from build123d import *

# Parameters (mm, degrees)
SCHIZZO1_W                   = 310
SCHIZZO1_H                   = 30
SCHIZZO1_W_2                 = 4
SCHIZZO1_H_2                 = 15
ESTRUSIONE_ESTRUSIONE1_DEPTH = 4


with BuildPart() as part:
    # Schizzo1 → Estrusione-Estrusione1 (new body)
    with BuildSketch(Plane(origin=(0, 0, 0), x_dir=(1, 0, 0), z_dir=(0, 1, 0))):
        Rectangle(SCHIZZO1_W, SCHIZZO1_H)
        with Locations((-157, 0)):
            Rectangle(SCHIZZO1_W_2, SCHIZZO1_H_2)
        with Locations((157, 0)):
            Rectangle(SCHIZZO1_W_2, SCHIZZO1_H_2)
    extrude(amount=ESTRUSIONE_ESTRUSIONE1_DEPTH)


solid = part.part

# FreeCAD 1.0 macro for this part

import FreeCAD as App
import Part
import Sketcher
from FreeCAD import Vector


def add_polygon(sketch, points):
    """Adds a closed chain of lines whose ends are joined by coincident constraints."""
    first, n = sketch.GeometryCount, len(points)
    for a, b in zip(points, points[1:] + points[:1]):
        sketch.addGeometry(Part.LineSegment(App.Vector(*a, 0), App.Vector(*b, 0)), False)
    for i in range(n):
        sketch.addConstraint(Sketcher.Constraint("Coincident", first + i, 2, first + (i + 1) % n, 1))

doc = App.newDocument("Part")
body = doc.addObject("PartDesign::Body", "Body")

# Sketch on XZ plane
sketch1 = body.newObject("Sketcher::SketchObject", "Sketch")
sketch1.AttachmentSupport = (doc.getObject("XZ_Plane"), [""])
sketch1.MapMode = "FlatFace"
add_polygon(sketch1, [(-155, 7.5), (-155, 15), (155, 15), (155, 7.5), (159, 7.5), (159, -7.5), (155, -7.5), (155, -15), (-155, -15), (-155, -7.5), (-159, -7.5), (-159, 7.5)])  # lines 0-11
sketch1.addConstraint(Sketcher.Constraint("Vertical", 0))
sketch1.addConstraint(Sketcher.Constraint("Horizontal", 1))
sketch1.addConstraint(Sketcher.Constraint("Vertical", 2))
sketch1.addConstraint(Sketcher.Constraint("Horizontal", 3))
sketch1.addConstraint(Sketcher.Constraint("Vertical", 4))
sketch1.addConstraint(Sketcher.Constraint("Horizontal", 5))
sketch1.addConstraint(Sketcher.Constraint("Vertical", 6))
sketch1.addConstraint(Sketcher.Constraint("Horizontal", 7))
sketch1.addConstraint(Sketcher.Constraint("Vertical", 8))
sketch1.addConstraint(Sketcher.Constraint("Horizontal", 9))
sketch1.addConstraint(Sketcher.Constraint("Vertical", 10))
sketch1.addConstraint(Sketcher.Constraint("Horizontal", 11))
sketch1.addConstraint(Sketcher.Constraint("Symmetric", 0, 2, 6, 2, -1, 1))
sketch1.addConstraint(Sketcher.Constraint("Symmetric", 2, 2, 8, 2, -1, 1))
sketch1.addConstraint(Sketcher.Constraint("Symmetric", 4, 2, 10, 2, -1, 1))
sketch1.addConstraint(Sketcher.Constraint("Symmetric", 5, 2, 8, 2, -2))
sketch1.addConstraint(Sketcher.Constraint("DistanceX", 1, 1, 1, 2, 310.0))
sketch1.addConstraint(Sketcher.Constraint("DistanceX", 3, 1, 3, 2, 4.0))
sketch1.addConstraint(Sketcher.Constraint("DistanceY", 4, 2, 4, 1, 15.0))
sketch1.addConstraint(Sketcher.Constraint("DistanceY", 0, 1, 0, 2, 7.5))
pad1 = body.newObject("PartDesign::Pad", "Pad")
pad1.Profile = sketch1
pad1.Length = 4
pad1.Reversed = True

doc.recompute()
